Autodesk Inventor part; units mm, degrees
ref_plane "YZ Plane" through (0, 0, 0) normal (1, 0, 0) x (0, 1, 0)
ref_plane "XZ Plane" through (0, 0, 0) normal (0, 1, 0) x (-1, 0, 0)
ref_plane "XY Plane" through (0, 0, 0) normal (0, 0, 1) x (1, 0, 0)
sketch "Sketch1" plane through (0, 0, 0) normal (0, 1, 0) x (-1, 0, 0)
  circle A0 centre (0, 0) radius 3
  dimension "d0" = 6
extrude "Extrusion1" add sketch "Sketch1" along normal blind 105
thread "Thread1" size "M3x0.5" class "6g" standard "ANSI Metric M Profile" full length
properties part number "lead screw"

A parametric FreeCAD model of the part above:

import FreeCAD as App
import Part
import Sketcher
from FreeCAD import Vector
Q = App.Units.Quantity

doc = App.newDocument("Part")
params = doc.addObject("Spreadsheet::Sheet", "Params")
for row, (alias, value) in enumerate([
    ("sketch1_diameter", "6 mm"),
    ("pad1_length", "105 mm"),
], start=1):
    params.set(f"A{row}", alias)
    params.set(f"B{row}", "=" + value)
    params.setAlias(f"B{row}", alias)

body = doc.addObject("PartDesign::Body", "Body")

# Sketch on XZ plane
sketch1 = body.newObject("Sketcher::SketchObject", "Sketch")
sketch1.AttachmentSupport = (doc.getObject("XZ_Plane"), [""])
sketch1.MapMode = "FlatFace"
sketch1.addGeometry(Part.Circle(Vector(0, 0, 0), Vector(0, 0, 1), 3), False)
sketch1.addConstraint([
    Sketcher.Constraint("Coincident", 0, 3, -1, 1),
    Sketcher.Constraint("Diameter", 0, Q("6 mm")),
])
sketch1.setExpression("Constraints[1]", "Params.sketch1_diameter")
pad1 = body.newObject("PartDesign::Pad", "Pad")
pad1.Profile = sketch1
pad1.setExpression("Length", "Params.pad1_length")
pad1.Reversed = True

doc.recompute()
